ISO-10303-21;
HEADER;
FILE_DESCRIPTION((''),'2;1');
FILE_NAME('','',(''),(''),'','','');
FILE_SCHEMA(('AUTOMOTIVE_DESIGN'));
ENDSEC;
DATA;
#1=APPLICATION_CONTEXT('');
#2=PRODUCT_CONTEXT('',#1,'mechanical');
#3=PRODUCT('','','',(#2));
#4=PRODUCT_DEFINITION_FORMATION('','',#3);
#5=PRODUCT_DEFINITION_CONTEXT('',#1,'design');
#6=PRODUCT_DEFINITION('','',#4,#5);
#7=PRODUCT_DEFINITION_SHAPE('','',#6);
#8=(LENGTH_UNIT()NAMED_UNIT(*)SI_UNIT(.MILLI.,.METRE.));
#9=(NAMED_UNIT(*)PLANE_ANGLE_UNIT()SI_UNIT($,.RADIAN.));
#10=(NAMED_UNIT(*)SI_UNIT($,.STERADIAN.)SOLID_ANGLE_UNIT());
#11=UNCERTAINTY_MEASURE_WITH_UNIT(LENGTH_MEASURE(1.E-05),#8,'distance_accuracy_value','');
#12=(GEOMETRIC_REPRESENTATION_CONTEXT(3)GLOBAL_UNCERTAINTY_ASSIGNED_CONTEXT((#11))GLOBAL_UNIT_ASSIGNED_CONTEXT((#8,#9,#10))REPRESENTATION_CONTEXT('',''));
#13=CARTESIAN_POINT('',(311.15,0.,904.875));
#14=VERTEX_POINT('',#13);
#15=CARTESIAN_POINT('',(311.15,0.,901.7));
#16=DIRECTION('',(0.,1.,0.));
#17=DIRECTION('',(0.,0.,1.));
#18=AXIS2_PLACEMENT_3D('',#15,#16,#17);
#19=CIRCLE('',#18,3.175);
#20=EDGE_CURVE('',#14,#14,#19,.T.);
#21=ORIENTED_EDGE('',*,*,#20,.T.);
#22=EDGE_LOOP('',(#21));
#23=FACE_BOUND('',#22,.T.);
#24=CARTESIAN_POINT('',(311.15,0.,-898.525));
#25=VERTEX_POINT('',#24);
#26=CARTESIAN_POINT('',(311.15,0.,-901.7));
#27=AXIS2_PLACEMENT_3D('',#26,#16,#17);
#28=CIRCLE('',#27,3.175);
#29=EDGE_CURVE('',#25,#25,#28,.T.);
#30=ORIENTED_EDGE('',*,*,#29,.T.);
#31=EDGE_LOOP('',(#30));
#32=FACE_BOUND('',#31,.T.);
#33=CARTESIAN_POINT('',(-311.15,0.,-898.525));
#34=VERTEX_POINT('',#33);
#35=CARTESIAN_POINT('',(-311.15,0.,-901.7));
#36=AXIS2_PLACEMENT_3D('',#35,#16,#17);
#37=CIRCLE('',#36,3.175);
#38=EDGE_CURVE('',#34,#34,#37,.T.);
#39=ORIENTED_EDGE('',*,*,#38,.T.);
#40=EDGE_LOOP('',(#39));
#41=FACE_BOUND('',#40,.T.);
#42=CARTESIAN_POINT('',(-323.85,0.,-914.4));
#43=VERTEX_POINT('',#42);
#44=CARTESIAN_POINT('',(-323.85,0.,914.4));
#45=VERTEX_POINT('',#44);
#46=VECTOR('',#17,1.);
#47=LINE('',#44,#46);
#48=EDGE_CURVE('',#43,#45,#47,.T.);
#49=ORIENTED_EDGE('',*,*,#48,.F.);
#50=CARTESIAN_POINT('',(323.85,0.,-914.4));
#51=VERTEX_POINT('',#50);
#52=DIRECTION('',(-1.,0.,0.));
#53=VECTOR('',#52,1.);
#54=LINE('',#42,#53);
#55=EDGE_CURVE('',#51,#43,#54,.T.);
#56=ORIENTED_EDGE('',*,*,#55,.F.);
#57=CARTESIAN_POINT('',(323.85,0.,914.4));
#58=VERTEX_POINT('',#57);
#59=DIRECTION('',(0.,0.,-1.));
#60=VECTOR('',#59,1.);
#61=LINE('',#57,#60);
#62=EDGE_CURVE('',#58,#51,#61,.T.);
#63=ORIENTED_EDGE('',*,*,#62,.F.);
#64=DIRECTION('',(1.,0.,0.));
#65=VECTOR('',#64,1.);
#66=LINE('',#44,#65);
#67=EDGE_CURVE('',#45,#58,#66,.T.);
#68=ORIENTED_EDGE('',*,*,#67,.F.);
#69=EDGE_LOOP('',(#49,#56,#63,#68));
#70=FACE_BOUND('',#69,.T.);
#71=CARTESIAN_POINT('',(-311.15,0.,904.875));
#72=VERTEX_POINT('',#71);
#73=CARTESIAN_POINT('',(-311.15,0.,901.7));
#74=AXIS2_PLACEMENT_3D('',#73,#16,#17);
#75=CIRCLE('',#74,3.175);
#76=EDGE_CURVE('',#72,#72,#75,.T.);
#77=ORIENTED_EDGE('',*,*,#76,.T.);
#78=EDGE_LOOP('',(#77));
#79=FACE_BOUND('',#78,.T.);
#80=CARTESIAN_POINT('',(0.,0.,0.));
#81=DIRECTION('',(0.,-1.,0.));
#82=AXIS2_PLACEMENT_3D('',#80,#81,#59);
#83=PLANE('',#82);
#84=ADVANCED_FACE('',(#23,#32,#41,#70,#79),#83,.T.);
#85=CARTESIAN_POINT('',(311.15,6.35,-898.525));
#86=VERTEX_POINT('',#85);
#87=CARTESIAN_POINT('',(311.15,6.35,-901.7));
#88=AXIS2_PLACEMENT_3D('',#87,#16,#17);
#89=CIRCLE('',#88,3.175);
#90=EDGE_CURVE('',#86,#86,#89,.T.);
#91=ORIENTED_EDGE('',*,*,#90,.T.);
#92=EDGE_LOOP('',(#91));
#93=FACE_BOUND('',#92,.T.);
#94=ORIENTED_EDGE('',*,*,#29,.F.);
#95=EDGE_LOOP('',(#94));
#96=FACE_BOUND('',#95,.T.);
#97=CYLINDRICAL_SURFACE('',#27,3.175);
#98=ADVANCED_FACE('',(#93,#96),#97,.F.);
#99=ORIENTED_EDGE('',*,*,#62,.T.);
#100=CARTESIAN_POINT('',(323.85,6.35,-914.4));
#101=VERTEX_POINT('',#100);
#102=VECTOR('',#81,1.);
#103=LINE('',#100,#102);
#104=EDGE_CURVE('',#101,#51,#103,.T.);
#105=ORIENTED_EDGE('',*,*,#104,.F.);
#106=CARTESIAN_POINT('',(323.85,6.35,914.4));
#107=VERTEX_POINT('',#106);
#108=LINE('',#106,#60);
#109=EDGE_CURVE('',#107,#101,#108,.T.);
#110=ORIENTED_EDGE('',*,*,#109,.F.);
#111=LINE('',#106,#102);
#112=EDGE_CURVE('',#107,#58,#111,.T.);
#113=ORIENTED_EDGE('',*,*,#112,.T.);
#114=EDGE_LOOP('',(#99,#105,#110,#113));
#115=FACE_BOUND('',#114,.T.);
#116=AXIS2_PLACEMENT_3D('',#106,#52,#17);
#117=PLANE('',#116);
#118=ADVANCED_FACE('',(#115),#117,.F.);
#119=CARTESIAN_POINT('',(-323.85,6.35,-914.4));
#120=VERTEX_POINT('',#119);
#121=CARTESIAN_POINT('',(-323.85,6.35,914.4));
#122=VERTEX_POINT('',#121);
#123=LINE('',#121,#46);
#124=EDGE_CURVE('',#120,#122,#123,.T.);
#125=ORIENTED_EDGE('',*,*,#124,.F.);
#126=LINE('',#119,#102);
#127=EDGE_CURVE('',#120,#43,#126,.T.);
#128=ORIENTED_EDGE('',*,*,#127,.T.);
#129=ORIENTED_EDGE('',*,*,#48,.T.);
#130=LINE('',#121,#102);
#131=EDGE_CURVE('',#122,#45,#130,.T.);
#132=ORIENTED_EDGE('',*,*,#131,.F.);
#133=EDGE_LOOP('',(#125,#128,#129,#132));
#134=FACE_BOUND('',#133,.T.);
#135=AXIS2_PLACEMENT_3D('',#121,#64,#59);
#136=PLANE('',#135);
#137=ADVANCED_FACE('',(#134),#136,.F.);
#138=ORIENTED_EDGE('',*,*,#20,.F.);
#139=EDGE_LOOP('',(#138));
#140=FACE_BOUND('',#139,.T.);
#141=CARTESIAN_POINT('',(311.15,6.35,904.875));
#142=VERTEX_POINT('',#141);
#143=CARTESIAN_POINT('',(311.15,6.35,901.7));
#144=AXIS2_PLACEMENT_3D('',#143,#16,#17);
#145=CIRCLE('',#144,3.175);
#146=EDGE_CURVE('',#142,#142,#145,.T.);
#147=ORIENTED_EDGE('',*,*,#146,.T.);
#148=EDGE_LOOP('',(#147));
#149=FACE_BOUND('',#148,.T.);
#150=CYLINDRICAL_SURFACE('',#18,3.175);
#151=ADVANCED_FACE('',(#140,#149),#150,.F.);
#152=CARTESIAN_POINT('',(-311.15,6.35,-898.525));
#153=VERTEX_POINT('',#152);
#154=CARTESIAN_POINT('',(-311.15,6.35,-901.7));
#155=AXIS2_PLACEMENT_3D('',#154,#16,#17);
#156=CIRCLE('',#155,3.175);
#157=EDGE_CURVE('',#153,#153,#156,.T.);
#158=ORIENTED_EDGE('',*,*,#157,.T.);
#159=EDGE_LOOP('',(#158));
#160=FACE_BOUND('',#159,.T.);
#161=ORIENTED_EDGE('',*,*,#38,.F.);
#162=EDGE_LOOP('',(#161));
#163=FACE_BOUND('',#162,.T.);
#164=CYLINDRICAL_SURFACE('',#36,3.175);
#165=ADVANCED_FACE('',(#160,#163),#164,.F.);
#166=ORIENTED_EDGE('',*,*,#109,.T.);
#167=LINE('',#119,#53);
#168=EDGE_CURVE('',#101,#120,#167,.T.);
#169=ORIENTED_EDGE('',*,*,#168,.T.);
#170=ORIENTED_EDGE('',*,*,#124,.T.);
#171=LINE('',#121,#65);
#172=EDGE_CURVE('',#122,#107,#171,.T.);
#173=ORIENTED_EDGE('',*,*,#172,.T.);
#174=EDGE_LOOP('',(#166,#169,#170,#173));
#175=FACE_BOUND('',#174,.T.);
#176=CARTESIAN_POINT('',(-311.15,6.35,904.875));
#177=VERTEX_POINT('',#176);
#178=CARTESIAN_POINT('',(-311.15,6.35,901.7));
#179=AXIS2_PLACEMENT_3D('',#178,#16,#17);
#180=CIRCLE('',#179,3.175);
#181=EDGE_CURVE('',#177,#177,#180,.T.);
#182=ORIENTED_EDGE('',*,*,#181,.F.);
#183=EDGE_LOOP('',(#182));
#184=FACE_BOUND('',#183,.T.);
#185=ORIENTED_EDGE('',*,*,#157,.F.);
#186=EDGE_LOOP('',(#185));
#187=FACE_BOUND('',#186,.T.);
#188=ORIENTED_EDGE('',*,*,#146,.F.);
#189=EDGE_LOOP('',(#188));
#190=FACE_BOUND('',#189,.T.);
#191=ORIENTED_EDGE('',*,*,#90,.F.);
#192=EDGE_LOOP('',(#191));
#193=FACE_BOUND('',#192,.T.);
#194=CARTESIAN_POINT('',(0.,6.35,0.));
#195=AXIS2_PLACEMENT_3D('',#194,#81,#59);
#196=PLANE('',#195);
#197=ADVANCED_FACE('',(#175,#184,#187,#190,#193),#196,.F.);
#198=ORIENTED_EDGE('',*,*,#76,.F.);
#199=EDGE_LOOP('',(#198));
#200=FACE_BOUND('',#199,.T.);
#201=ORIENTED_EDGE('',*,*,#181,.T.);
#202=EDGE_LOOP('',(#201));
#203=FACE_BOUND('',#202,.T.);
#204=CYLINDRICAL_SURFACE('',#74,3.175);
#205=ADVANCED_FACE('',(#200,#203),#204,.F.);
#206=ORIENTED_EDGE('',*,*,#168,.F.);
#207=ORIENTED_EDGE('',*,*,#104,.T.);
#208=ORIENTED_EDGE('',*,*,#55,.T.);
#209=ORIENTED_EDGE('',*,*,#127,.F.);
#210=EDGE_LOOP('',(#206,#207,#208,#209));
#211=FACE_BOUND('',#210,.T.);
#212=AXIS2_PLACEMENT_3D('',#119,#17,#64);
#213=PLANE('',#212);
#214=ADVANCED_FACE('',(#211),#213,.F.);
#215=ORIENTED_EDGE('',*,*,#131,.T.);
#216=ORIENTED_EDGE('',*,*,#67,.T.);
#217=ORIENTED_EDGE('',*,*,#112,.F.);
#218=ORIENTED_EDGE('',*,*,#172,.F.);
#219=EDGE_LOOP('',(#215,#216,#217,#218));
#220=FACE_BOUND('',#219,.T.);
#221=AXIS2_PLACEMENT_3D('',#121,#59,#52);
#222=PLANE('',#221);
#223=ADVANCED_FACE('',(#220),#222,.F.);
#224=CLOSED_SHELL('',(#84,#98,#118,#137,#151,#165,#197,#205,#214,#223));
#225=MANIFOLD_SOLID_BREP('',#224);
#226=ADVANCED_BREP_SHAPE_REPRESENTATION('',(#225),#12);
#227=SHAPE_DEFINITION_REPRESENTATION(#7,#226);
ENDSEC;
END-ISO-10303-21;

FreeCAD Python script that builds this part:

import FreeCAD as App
import Part
import Sketcher
from FreeCAD import Vector
Q = App.Units.Quantity

doc = App.newDocument("Part")
body = doc.addObject("PartDesign::Body", "Body")

# Sketch on XZ plane
sketch1 = body.newObject("Sketcher::SketchObject", "Sketch")
sketch1.AttachmentSupport = (doc.getObject("XZ_Plane"), [""])
sketch1.MapMode = "FlatFace"
sketch1.addGeometry([
    Part.LineSegment(Vector(-324, -914, 0), Vector(-324, 914, 0)),
    Part.LineSegment(Vector(-324, 914, 0), Vector(324, 914, 0)),
    Part.LineSegment(Vector(324, 914, 0), Vector(324, -914, 0)),
    Part.LineSegment(Vector(324, -914, 0), Vector(-324, -914, 0)),
], False)
sketch1.addConstraint([
    Sketcher.Constraint("Coincident", 0, 2, 1, 1),
    Sketcher.Constraint("Coincident", 1, 2, 2, 1),
    Sketcher.Constraint("Coincident", 2, 2, 3, 1),
    Sketcher.Constraint("Coincident", 3, 2, 0, 1),
    Sketcher.Constraint("Vertical", 0),
    Sketcher.Constraint("Horizontal", 1),
    Sketcher.Constraint("Vertical", 2),
    Sketcher.Constraint("Horizontal", 3),
    Sketcher.Constraint("Symmetric", 0, 2, 2, 2, -1, 1),
    Sketcher.Constraint("DistanceY", 0, 1, 0, 2, Q("72 in")),
    Sketcher.Constraint("DistanceX", 1, 1, 1, 2, Q("25.5 in")),
])
pad1 = body.newObject("PartDesign::Pad", "Pad")
pad1.Profile = sketch1
pad1.Length = Q("0.25 in")
pad1.Reversed = True

# Sketch on XZ plane
sketch2 = body.newObject("Sketcher::SketchObject", "Sketch001")
sketch2.AttachmentSupport = (doc.getObject("XZ_Plane"), [""])
sketch2.MapMode = "FlatFace"
sketch2.AttachmentOffset = App.Placement(Vector(0, 0, -0.25 * 25.4), App.Rotation())
sketch2.addGeometry([
    Part.Circle(Vector(311.1, 901.7, 0), Vector(0, 0, 1), 3.2),
    Part.Circle(Vector(-311.1, 901.7, 0), Vector(0, 0, 1), 3.2),
    Part.Circle(Vector(311.1, -901.7, 0), Vector(0, 0, 1), 3.2),
    Part.Circle(Vector(-311.1, -901.7, 0), Vector(0, 0, 1), 3.2),
], False)
sketch2.addConstraint([
    Sketcher.Constraint("Equal", 0, 1),
    Sketcher.Constraint("Equal", 1, 2),
    Sketcher.Constraint("Equal", 2, 3),
    Sketcher.Constraint("Symmetric", 1, 3, 2, 3, -1, 1),
    Sketcher.Constraint("Symmetric", 0, 3, 3, 3, -1, 1),
    Sketcher.Constraint("Symmetric", 0, 3, 1, 3, -2),
    Sketcher.Constraint("Diameter", 0, Q("0.25 in")),
    Sketcher.Constraint("DistanceY", 2, 3, 0, 3, Q("71 in")),
    Sketcher.Constraint("DistanceX", 1, 3, 0, 3, Q("24.5 in")),
])
pocket1 = body.newObject("PartDesign::Pocket", "Pocket")
pocket1.Profile = sketch2
pocket1.Type = "ThroughAll"
pocket1.Reversed = True

doc.recompute()
